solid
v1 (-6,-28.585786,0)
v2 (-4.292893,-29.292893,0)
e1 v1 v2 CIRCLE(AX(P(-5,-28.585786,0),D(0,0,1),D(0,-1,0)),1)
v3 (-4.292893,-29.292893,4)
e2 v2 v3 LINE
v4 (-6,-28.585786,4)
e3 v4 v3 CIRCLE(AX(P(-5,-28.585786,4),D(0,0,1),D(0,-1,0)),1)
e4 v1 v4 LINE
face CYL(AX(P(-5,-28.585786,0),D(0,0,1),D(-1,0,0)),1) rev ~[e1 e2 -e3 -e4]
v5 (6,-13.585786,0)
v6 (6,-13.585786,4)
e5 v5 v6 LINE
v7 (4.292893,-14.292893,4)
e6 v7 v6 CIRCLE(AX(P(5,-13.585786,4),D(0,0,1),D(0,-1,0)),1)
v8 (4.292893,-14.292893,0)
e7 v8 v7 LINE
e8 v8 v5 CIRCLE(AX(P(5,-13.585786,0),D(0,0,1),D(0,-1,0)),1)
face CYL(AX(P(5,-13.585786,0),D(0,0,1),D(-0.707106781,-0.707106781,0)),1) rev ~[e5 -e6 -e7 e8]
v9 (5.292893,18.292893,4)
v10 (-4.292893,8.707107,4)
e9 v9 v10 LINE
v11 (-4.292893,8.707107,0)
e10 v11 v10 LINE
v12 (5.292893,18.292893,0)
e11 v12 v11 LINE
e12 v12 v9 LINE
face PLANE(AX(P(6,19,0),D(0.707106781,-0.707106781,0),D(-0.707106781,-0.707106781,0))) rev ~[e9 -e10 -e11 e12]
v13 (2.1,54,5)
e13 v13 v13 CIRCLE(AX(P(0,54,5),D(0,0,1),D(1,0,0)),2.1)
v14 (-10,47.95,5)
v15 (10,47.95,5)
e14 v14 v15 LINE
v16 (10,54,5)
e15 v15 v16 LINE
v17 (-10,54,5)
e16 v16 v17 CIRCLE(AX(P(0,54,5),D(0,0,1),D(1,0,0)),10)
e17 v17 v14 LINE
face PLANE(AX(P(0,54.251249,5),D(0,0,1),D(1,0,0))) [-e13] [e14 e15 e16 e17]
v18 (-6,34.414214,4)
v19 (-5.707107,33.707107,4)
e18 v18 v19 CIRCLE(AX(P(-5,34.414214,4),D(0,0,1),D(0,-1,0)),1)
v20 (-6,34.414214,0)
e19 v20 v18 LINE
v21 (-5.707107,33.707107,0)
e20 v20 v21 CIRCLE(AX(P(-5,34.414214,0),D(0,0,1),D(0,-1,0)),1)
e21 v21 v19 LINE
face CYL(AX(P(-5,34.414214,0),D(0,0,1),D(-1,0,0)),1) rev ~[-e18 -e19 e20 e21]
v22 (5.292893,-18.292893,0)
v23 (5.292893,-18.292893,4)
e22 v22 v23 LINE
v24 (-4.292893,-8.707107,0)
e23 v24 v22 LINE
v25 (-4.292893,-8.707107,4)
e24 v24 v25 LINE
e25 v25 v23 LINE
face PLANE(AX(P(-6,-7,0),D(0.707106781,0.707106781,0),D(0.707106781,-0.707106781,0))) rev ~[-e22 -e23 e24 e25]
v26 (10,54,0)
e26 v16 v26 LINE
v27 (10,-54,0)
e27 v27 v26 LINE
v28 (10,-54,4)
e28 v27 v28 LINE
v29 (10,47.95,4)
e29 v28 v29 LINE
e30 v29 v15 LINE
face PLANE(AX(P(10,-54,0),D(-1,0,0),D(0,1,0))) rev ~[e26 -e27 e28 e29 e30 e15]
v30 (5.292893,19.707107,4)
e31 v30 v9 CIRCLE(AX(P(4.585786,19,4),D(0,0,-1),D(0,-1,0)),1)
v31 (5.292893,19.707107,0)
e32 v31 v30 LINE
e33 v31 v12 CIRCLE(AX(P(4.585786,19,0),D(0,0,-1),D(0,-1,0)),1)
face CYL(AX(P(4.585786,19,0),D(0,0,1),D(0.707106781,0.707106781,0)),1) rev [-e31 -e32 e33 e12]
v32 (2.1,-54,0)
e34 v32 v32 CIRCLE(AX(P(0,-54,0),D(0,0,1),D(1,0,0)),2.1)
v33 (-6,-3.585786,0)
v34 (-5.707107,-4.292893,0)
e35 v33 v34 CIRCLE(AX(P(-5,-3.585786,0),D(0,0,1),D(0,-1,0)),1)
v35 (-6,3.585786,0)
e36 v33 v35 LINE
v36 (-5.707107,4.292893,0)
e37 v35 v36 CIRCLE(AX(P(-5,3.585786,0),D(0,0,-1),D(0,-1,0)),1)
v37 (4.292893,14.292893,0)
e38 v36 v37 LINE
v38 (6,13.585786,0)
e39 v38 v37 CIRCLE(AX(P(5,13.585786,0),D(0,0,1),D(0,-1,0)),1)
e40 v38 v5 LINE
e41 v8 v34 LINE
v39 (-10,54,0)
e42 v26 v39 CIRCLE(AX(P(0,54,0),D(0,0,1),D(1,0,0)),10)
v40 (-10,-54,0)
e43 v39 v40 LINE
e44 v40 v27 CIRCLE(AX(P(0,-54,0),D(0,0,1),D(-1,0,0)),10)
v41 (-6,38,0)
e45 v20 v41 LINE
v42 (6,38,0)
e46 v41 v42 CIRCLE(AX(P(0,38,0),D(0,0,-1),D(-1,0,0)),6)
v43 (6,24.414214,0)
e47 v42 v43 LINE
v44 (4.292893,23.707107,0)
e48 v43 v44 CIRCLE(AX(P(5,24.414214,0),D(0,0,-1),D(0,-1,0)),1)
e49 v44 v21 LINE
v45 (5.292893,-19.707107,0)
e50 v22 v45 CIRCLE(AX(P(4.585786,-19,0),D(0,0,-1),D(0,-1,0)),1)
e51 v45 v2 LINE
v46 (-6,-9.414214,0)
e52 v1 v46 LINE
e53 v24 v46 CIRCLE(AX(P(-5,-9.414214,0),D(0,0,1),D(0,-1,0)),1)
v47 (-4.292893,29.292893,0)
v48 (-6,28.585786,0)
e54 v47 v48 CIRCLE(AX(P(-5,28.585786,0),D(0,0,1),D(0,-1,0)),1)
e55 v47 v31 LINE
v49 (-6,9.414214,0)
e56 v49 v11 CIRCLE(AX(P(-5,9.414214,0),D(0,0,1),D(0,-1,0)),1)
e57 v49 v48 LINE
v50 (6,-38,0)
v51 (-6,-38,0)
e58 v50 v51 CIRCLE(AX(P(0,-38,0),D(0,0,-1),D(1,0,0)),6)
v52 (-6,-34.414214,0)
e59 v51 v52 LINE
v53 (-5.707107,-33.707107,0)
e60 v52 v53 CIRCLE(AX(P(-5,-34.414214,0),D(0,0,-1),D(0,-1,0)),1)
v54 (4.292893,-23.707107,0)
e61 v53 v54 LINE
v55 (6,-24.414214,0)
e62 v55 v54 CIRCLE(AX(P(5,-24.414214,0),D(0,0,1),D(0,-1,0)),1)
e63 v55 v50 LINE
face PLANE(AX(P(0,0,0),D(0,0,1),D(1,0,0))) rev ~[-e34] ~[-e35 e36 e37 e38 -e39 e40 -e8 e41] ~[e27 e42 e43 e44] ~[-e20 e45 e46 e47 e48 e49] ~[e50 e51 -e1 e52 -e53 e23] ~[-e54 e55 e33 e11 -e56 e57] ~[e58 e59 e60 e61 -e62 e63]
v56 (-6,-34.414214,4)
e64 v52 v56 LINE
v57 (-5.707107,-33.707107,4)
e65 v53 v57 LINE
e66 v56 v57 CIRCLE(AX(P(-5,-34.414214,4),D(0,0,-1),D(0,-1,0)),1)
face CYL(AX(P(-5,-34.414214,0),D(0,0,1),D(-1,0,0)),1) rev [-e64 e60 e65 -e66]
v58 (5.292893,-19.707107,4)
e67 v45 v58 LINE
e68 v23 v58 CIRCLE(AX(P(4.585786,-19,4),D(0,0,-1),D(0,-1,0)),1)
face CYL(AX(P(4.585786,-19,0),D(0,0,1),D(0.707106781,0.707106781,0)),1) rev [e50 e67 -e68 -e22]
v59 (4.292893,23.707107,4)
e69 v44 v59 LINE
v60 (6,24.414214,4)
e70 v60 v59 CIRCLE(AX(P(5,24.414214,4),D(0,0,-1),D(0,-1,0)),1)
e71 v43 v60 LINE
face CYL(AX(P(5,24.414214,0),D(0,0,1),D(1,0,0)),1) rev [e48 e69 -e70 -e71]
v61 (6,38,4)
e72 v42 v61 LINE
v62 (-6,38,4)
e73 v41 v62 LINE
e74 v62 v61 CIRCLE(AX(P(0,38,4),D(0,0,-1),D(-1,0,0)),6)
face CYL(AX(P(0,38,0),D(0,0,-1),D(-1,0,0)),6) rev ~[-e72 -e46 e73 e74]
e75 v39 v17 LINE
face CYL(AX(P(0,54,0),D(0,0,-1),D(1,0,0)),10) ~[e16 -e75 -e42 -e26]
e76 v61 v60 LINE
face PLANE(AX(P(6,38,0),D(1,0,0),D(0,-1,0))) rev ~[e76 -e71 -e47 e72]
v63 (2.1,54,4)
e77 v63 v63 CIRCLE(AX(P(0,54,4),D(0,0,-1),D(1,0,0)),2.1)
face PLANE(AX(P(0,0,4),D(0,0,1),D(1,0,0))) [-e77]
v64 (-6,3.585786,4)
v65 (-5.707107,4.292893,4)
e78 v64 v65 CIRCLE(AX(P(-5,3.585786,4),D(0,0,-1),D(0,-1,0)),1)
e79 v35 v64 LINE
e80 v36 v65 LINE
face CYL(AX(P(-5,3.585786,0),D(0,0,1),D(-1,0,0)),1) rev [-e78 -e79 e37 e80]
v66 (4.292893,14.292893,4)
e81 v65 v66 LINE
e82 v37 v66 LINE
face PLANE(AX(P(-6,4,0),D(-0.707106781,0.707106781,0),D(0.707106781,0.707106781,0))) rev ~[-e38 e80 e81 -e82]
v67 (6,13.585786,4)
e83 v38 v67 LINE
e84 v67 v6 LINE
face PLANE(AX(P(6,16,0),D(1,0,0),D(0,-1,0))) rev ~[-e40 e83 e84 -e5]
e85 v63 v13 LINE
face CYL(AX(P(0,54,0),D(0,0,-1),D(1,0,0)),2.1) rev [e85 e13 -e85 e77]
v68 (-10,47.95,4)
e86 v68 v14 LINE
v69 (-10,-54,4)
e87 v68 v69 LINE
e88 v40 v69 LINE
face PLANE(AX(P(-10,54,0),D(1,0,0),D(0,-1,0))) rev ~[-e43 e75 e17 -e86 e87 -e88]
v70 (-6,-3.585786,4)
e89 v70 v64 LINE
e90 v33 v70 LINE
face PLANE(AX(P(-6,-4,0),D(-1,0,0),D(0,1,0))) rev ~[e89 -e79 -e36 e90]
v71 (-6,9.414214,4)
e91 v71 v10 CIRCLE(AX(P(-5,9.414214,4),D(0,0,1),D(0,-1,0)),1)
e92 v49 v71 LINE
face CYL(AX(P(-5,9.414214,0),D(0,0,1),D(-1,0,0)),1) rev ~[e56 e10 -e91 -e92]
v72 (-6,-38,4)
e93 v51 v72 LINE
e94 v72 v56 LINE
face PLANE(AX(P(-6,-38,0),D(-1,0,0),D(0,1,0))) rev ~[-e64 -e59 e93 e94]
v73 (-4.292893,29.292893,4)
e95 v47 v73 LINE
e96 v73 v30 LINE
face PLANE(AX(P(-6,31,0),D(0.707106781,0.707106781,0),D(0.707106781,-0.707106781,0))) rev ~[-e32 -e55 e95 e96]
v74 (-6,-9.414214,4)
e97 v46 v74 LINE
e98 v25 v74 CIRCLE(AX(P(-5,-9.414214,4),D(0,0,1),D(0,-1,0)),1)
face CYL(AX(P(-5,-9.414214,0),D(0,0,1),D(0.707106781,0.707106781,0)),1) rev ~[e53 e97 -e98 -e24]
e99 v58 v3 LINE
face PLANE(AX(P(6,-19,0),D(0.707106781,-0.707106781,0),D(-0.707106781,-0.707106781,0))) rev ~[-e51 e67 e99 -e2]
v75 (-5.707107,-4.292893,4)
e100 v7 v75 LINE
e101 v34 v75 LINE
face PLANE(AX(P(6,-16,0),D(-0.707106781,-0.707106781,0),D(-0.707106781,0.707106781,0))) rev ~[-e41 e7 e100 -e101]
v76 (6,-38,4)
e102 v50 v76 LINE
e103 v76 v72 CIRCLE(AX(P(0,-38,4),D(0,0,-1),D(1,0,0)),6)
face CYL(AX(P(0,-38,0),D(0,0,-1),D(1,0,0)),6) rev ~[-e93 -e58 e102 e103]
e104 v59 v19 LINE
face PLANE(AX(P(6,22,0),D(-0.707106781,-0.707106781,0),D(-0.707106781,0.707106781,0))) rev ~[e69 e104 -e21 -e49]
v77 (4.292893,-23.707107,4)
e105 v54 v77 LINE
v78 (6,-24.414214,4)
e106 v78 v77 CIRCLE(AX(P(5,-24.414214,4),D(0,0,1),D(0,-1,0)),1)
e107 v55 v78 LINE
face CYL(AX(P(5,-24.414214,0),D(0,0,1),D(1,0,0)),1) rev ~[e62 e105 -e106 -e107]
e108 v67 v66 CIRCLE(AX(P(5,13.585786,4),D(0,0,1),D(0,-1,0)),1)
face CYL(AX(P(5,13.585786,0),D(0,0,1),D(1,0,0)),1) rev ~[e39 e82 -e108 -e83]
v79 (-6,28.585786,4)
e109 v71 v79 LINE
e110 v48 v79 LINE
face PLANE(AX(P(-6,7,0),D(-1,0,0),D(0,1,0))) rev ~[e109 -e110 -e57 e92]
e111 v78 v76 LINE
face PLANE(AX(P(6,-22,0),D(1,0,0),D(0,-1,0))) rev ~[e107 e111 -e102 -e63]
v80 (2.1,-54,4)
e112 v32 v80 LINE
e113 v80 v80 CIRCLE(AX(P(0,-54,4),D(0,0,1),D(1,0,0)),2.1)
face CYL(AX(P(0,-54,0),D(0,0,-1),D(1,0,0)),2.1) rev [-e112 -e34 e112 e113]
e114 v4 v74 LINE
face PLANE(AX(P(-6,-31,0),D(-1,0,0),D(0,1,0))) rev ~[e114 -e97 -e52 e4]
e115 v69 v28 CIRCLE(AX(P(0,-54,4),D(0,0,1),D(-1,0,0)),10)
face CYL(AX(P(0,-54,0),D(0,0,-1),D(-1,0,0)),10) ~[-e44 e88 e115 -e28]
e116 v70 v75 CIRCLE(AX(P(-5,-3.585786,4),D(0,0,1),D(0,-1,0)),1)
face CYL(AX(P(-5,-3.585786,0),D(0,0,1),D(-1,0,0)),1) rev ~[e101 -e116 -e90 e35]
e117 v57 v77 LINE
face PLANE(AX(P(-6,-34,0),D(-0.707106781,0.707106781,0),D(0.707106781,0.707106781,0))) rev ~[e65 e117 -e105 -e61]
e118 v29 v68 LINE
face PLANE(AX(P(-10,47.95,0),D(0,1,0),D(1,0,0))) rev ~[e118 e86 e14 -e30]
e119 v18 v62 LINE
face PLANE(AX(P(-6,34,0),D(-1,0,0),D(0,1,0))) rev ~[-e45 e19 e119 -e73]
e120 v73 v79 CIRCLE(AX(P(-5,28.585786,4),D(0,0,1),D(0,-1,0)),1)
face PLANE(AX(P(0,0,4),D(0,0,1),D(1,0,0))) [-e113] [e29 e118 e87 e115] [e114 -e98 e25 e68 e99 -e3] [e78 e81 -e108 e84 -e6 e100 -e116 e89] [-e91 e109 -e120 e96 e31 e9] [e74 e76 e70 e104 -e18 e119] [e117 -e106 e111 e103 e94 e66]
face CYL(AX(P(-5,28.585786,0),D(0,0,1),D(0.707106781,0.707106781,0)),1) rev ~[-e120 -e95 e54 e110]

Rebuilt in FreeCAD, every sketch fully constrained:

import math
import FreeCAD as App
import Part
import Sketcher
from FreeCAD import Vector


def edges_at(feature, points):
    """Names of the edges that pass closest to the given points."""
    edges = feature.Shape.Edges
    near = lambda p: min(range(len(edges)), key=lambda i: edges[i].distToShape(Part.Vertex(*p))[0])
    return sorted({f"Edge{near(p) + 1}" for p in points})

doc = App.newDocument("Part")
body = doc.addObject("PartDesign::Body", "Body")

# Sketch on XY plane
sketch1 = doc.addObject("Sketcher::SketchObject", "Sketch")
body.addObject(sketch1)
sketch1.AttachmentSupport = (doc.XY_Plane, [""])
sketch1.MapMode = "FlatFace"
sketch1.addGeometry([
    Part.ArcOfCircle(Part.Circle(Vector(0, 54, 0), Vector(0, 0, 1), 10), math.radians(0), math.radians(180)),  # 0
    Part.LineSegment(Vector(-10, 54, 0), Vector(-10, -54, 0)),  # 1
    Part.ArcOfCircle(Part.Circle(Vector(0, -54, 0), Vector(0, 0, 1), 10), math.radians(180), math.radians(360)),  # 2
    Part.LineSegment(Vector(10, -54, 0), Vector(10, 54, 0)),  # 3
    Part.Circle(Vector(0, -54, 0), Vector(0, 0, 1), 2.1),  # 4
    Part.LineSegment(Vector(-6, -34, 0), Vector(6, -22, 0)),  # 5
    Part.LineSegment(Vector(6, -22, 0), Vector(6, -38, 0)),  # 6
    Part.ArcOfCircle(Part.Circle(Vector(0, -38, 0), Vector(0, 0, 1), 6), math.radians(180), math.radians(360)),  # 7
    Part.LineSegment(Vector(-6, -38, 0), Vector(-6, -34, 0)),  # 8
    Part.LineSegment(Vector(6, -19, 0), Vector(-6, -31, 0)),  # 9
    Part.LineSegment(Vector(-6, -31, 0), Vector(-6, -7, 0)),  # 10
    Part.LineSegment(Vector(-6, -7, 0), Vector(6, -19, 0)),  # 11
    Part.LineSegment(Vector(-6, 4, 0), Vector(6, 16, 0)),  # 12
    Part.LineSegment(Vector(6, 16, 0), Vector(6, -16, 0)),  # 13
    Part.LineSegment(Vector(6, -16, 0), Vector(-6, -4, 0)),  # 14
    Part.LineSegment(Vector(-6, -4, 0), Vector(-6, 4, 0)),  # 15
    Part.LineSegment(Vector(6, 19, 0), Vector(-6, 7, 0)),  # 16
    Part.LineSegment(Vector(-6, 7, 0), Vector(-6, 31, 0)),  # 17
    Part.LineSegment(Vector(-6, 31, 0), Vector(6, 19, 0)),  # 18
    Part.ArcOfCircle(Part.Circle(Vector(0, 38, 0), Vector(0, 0, 1), 6), math.radians(0), math.radians(180)),  # 19
    Part.LineSegment(Vector(6, 38, 0), Vector(6, 22, 0)),  # 20
    Part.LineSegment(Vector(6, 22, 0), Vector(-6, 34, 0)),  # 21
    Part.LineSegment(Vector(-6, 34, 0), Vector(-6, 38, 0)),  # 22
], False)
sketch1.addConstraint([
    Sketcher.Constraint("Tangent", 0, 2, 1, 1),
    Sketcher.Constraint("Tangent", 1, 2, 2, 1),
    Sketcher.Constraint("Tangent", 2, 2, 3, 1),
    Sketcher.Constraint("Tangent", 3, 2, 0, 1),
    Sketcher.Constraint("Coincident", 5, 2, 6, 1),
    Sketcher.Constraint("Tangent", 6, 2, 7, 2),
    Sketcher.Constraint("Tangent", 7, 1, 8, 1),
    Sketcher.Constraint("Coincident", 8, 2, 5, 1),
    Sketcher.Constraint("Coincident", 9, 2, 10, 1),
    Sketcher.Constraint("Coincident", 10, 2, 11, 1),
    Sketcher.Constraint("Coincident", 11, 2, 9, 1),
    Sketcher.Constraint("Coincident", 12, 2, 13, 1),
    Sketcher.Constraint("Coincident", 13, 2, 14, 1),
    Sketcher.Constraint("Coincident", 14, 2, 15, 1),
    Sketcher.Constraint("Coincident", 15, 2, 12, 1),
    Sketcher.Constraint("Coincident", 16, 2, 17, 1),
    Sketcher.Constraint("Coincident", 17, 2, 18, 1),
    Sketcher.Constraint("Coincident", 18, 2, 16, 1),
    Sketcher.Constraint("Tangent", 19, 1, 20, 1),
    Sketcher.Constraint("Coincident", 20, 2, 21, 1),
    Sketcher.Constraint("Coincident", 21, 2, 22, 1),
    Sketcher.Constraint("Tangent", 22, 2, 19, 2),
    Sketcher.Constraint("Vertical", 1),
    Sketcher.Constraint("Vertical", 3),
    Sketcher.Constraint("Vertical", 6),
    Sketcher.Constraint("Vertical", 8),
    Sketcher.Constraint("Vertical", 10),
    Sketcher.Constraint("Vertical", 13),
    Sketcher.Constraint("Vertical", 15),
    Sketcher.Constraint("Vertical", 17),
    Sketcher.Constraint("Vertical", 20),
    Sketcher.Constraint("Vertical", 22),
    Sketcher.Constraint("Coincident", 4, 3, 2, 3),
    Sketcher.Constraint("Equal", 7, 19),
    Sketcher.Constraint("Symmetric", 0, 3, 2, 3, -1, 1),
    Sketcher.Constraint("Symmetric", 7, 3, 19, 3, -1, 1),
    Sketcher.Constraint("Symmetric", 10, 2, 16, 2, -1),
    Sketcher.Constraint("Symmetric", 11, 2, 18, 2, -1),
    Sketcher.Constraint("Symmetric", 5, 2, 20, 2, -1),
    Sketcher.Constraint("Parallel", 5, 9),
    Sketcher.Constraint("Perpendicular", 9, 11),
    Sketcher.Constraint("Perpendicular", 11, 12),
    Sketcher.Constraint("Perpendicular", 12, 14),
    Sketcher.Constraint("Perpendicular", 14, 16),
    Sketcher.Constraint("Perpendicular", 16, 18),
    Sketcher.Constraint("Parallel", 18, 21),
    Sketcher.Constraint("Vertical", 8, 2, 9, 2),
    Sketcher.Constraint("Vertical", 6, 2, 11, 2),
    Sketcher.Constraint("Vertical", 11, 2, 12, 2),
    Sketcher.Constraint("Vertical", 10, 2, 14, 2),
    Sketcher.Constraint("Radius", 0, 10.0),
    Sketcher.Constraint("Radius", 7, 6.0),
    Sketcher.Constraint("Diameter", 4, 4.2),
    Sketcher.Constraint("DistanceY", 1, 2, 1, 1, 108.0),
    Sketcher.Constraint("DistanceY", 6, 2, 6, 1, 16.0),
    Sketcher.Constraint("DistanceY", 13, 2, 13, 1, 32.0),
    Sketcher.Constraint("DistanceY", 7, 3, -1, 1, 38.0),
    Sketcher.Constraint("DistanceY", 9, 2, -1, 1, 31.0),
    Sketcher.Constraint("DistanceY", -1, 1, 12, 2, 16.0),
])
pad1 = doc.addObject("PartDesign::Pad", "Pad")
body.addObject(pad1)
pad1.Profile = sketch1
pad1.Length = 4

# Sketch on XY plane
sketch2 = doc.addObject("Sketcher::SketchObject", "Sketch001")
body.addObject(sketch2)
sketch2.AttachmentSupport = (doc.XY_Plane, [""])
sketch2.MapMode = "FlatFace"
sketch2.addGeometry([
    Part.LineSegment(Vector(10, 48, 0), Vector(10, 54, 0)),  # 0
    Part.ArcOfCircle(Part.Circle(Vector(0, 54, 0), Vector(0, 0, 1), 10), math.radians(0), math.radians(180)),  # 1
    Part.LineSegment(Vector(-10, 54, 0), Vector(-10, 48, 0)),  # 2
    Part.LineSegment(Vector(-10, 48, 0), Vector(10, 48, 0)),  # 3
    Part.Circle(Vector(0, 54, 0), Vector(0, 0, 1), 2.1),  # 4
], False)
sketch2.addConstraint([
    Sketcher.Constraint("Tangent", 0, 2, 1, 1),
    Sketcher.Constraint("Tangent", 1, 2, 2, 1),
    Sketcher.Constraint("Coincident", 2, 2, 3, 1),
    Sketcher.Constraint("Coincident", 3, 2, 0, 1),
    Sketcher.Constraint("Vertical", 0),
    Sketcher.Constraint("Vertical", 2),
    Sketcher.Constraint("Horizontal", 3),
    Sketcher.Constraint("Coincident", 4, 3, 1, 3),
    Sketcher.Constraint("PointOnObject", 1, 3, -2),
    Sketcher.Constraint("Radius", 1, 10.0),
    Sketcher.Constraint("Diameter", 4, 4.2),
    Sketcher.Constraint("DistanceY", -1, 1, 1, 3, 54.0),
    Sketcher.Constraint("DistanceY", 0, 1, 0, 2, 6.05),
])
pad2 = doc.addObject("PartDesign::Pad", "Pad001")
body.addObject(pad2)
pad2.Profile = sketch2
pad2.Length = 5
doc.recompute()

fillet = doc.addObject("PartDesign::Fillet", "Fillet")
body.addObject(fillet)
fillet.Base = (pad2, edges_at(pad2, [
    (6, 22, 2),
    (-6, 34, 2),
    (6, -22, 2),
    (-6, -34, 2),
    (-6, -31, 2),
    (6, -19, 2),
    (-6, -7, 2),
    (-6, -4, 2),
    (6, -16, 2),
    (6, 16, 2),
    (-6, 4, 2),
    (-6, 7, 2),
    (6, 19, 2),
    (-6, 31, 2),
]))
fillet.Radius = 1

doc.recompute()
